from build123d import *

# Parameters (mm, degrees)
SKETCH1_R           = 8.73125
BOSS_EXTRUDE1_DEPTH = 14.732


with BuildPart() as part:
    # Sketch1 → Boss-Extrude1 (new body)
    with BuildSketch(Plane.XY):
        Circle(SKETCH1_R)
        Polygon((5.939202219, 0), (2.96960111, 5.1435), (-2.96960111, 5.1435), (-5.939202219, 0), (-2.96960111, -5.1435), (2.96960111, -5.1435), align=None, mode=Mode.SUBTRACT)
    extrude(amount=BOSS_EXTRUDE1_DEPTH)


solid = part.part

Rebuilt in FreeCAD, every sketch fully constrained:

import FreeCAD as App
import Part
import Sketcher
Q = App.Units.Quantity


def add_polygon(sketch, points):
    """Adds a closed chain of lines whose ends are joined by coincident constraints."""
    first, n = sketch.GeometryCount, len(points)
    for a, b in zip(points, points[1:] + points[:1]):
        sketch.addGeometry(Part.LineSegment(App.Vector(*a, 0), App.Vector(*b, 0)), False)
    for i in range(n):
        sketch.addConstraint(Sketcher.Constraint("Coincident", first + i, 2, first + (i + 1) % n, 1))

doc = App.newDocument("Part")
body = doc.addObject("PartDesign::Body", "Body")

# Sketch on XY plane
sketch1 = body.newObject("Sketcher::SketchObject", "Sketch")
sketch1.AttachmentSupport = (doc.getObject("XY_Plane"), [""])
sketch1.MapMode = "FlatFace"
sketch1.addGeometry(Part.Circle(App.Vector(0, 0, 0), App.Vector(0, 0, 1), 9), False)  # 0
add_polygon(sketch1, [(3, 5), (6, 0), (3, -5), (-3, -5), (-6, 0), (-3, 5)])  # lines 1-6
sketch1.addConstraint(Sketcher.Constraint("Horizontal", 3))
sketch1.addConstraint(Sketcher.Constraint("Horizontal", 6))
sketch1.addConstraint(Sketcher.Constraint("Coincident", 0, 3, -1, 1))
sketch1.addConstraint(Sketcher.Constraint("Symmetric", 1, 2, 4, 2, -1, 1))
sketch1.addConstraint(Sketcher.Constraint("Symmetric", 2, 2, 5, 2, -1, 1))
sketch1.addConstraint(Sketcher.Constraint("PointOnObject", 1, 2, -1))
sketch1.addConstraint(Sketcher.Constraint("Parallel", 1, 4))
sketch1.addConstraint(Sketcher.Constraint("Vertical", 3, 2, 5, 2))
sketch1.addConstraint(Sketcher.Constraint("Diameter", 0, Q("0.6875 in")))
sketch1.addConstraint(Sketcher.Constraint("Angle", 1, Q("-60 deg")))
sketch1.addConstraint(Sketcher.Constraint("DistanceY", 3, 2, 5, 2, Q("0.405 in")))
sketch1.addConstraint(Sketcher.Constraint("DistanceX", -1, 1, 2, 2, Q("2.969601 mm")))
pad1 = body.newObject("PartDesign::Pad", "Pad")
pad1.Profile = sketch1
pad1.Length = Q("0.58 in")

doc.recompute()
